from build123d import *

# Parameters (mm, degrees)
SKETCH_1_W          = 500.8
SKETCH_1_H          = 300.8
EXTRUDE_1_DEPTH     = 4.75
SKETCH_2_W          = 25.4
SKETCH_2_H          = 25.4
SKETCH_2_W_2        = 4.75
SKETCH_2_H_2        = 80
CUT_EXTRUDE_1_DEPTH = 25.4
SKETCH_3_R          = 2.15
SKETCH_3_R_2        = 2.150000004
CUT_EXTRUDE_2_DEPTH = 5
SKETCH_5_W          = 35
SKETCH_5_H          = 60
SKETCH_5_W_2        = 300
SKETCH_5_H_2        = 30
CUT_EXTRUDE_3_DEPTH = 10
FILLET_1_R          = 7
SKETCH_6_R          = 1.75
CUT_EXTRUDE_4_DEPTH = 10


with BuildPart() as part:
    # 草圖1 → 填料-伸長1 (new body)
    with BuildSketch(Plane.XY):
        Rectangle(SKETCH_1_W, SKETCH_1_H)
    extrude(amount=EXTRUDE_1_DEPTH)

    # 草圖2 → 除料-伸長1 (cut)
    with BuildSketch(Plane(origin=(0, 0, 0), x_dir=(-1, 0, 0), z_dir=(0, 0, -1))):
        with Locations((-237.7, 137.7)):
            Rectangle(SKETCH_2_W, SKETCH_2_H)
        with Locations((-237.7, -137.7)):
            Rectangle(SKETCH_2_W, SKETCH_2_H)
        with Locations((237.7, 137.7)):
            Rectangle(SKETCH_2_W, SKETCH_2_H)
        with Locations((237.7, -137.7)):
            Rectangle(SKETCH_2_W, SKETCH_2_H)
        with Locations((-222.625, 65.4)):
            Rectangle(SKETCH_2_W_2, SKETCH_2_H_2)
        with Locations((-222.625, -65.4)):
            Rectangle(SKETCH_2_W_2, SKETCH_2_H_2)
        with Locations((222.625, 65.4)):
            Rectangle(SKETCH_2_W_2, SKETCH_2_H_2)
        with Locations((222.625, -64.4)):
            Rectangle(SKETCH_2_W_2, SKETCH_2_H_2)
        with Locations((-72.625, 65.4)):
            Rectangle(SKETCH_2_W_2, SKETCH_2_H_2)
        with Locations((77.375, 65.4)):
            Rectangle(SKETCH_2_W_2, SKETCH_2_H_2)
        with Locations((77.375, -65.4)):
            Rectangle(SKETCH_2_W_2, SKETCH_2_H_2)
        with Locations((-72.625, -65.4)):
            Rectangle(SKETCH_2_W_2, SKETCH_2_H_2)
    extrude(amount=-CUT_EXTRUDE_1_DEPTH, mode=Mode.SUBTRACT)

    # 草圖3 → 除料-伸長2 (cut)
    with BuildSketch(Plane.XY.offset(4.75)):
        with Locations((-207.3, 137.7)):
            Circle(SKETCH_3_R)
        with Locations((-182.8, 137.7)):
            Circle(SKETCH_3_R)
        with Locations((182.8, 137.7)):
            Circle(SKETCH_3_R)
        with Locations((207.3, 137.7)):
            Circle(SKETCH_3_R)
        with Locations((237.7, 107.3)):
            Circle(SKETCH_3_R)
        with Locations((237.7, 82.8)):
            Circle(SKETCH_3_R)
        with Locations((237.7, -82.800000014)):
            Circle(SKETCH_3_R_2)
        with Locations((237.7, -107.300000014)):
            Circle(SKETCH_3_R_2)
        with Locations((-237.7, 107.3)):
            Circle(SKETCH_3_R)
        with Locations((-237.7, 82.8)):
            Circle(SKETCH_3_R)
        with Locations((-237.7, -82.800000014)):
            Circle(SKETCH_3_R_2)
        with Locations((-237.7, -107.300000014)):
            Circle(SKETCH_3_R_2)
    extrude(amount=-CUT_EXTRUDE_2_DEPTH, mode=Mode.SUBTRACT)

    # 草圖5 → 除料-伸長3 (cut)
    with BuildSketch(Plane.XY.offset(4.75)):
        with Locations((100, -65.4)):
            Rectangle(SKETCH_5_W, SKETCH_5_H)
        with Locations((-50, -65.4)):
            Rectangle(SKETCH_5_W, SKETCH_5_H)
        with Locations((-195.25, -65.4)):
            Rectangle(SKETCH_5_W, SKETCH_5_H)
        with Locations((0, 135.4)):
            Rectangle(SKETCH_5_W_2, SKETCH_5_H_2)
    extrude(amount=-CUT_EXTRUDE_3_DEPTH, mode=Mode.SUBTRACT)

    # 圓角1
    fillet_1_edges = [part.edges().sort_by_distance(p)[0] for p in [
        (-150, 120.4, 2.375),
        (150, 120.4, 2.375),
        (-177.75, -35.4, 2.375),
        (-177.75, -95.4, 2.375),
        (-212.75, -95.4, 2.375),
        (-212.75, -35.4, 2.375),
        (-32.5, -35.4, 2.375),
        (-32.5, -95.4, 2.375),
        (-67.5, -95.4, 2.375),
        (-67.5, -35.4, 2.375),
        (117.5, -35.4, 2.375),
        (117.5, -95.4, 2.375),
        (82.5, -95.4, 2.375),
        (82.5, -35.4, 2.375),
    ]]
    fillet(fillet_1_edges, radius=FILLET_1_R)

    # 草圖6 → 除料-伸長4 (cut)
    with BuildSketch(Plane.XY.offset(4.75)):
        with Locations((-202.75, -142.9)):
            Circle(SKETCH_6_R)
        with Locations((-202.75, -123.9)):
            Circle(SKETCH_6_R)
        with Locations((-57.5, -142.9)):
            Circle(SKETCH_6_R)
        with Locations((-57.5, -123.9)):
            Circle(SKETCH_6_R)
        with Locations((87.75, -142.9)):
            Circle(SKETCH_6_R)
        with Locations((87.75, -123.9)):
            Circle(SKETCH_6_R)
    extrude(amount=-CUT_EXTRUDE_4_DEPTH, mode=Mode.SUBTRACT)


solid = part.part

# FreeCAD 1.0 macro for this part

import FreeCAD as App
import Part
import Sketcher


def edges_at(feature, points):
    """Names of the edges that pass closest to the given points."""
    edges = feature.Shape.Edges
    near = lambda p: min(range(len(edges)), key=lambda i: edges[i].distToShape(Part.Vertex(*p))[0])
    return sorted({f"Edge{near(p) + 1}" for p in points})

doc = App.newDocument("Part")
params = doc.addObject("Spreadsheet::Sheet", "Params")
for row, (alias, value) in enumerate([
    ("sketch1_width", "500.8 mm"),
    ("sketch1_height", "300.8 mm"),
    ("pad1_length", "4.75 mm"),
    ("sketch2_height", "80 mm"),
    ("sketch2_width", "25.4 mm"),
    ("sketch2_width2", "4.75 mm"),
    ("pocket1_length", "25.4 mm"),
    ("sketch3_diameter", "4.3 mm"),
    ("pocket2_length", "5 mm"),
    ("sketch4_width", "35 mm"),
    ("sketch4_width2", "300 mm"),
    ("sketch4_height", "60 mm"),
    ("sketch4_height2", "30 mm"),
    ("pocket3_length", "10 mm"),
    ("fillet_radius", "7 mm"),
    ("sketch5_diameter", "3.5 mm"),
    ("pocket4_length", "10 mm"),
], start=1):
    params.set(f"A{row}", alias)
    params.set(f"B{row}", "=" + value)
    params.setAlias(f"B{row}", alias)

body = doc.addObject("PartDesign::Body", "Body")

# Sketch on XY plane
sketch1 = body.newObject("Sketcher::SketchObject", "Sketch")
sketch1.AttachmentSupport = (doc.getObject("XY_Plane"), [""])
sketch1.MapMode = "FlatFace"
sketch1.addGeometry(Part.LineSegment(App.Vector(-250, 150, 0), App.Vector(-250, -150, 0)), False)
sketch1.addGeometry(Part.LineSegment(App.Vector(-250, -150, 0), App.Vector(250, -150, 0)), False)
sketch1.addGeometry(Part.LineSegment(App.Vector(250, -150, 0), App.Vector(250, 150, 0)), False)
sketch1.addGeometry(Part.LineSegment(App.Vector(250, 150, 0), App.Vector(-250, 150, 0)), False)
sketch1.addConstraint(Sketcher.Constraint("Coincident", 0, 2, 1, 1))
sketch1.addConstraint(Sketcher.Constraint("Coincident", 1, 2, 2, 1))
sketch1.addConstraint(Sketcher.Constraint("Coincident", 2, 2, 3, 1))
sketch1.addConstraint(Sketcher.Constraint("Coincident", 3, 2, 0, 1))
sketch1.addConstraint(Sketcher.Constraint("Vertical", 0))
sketch1.addConstraint(Sketcher.Constraint("Horizontal", 1))
sketch1.addConstraint(Sketcher.Constraint("Vertical", 2))
sketch1.addConstraint(Sketcher.Constraint("Horizontal", 3))
sketch1.addConstraint(Sketcher.Constraint("Symmetric", 0, 2, 2, 2, -1, 1))
sketch1.addConstraint(Sketcher.Constraint("DistanceX", 1, 1, 1, 2, 500.8))
sketch1.addConstraint(Sketcher.Constraint("DistanceY", 0, 2, 0, 1, 300.8))
sketch1.setExpression("Constraints[9]", "Params.sketch1_width")
sketch1.setExpression("Constraints[10]", "Params.sketch1_height")
pad1 = body.newObject("PartDesign::Pad", "Pad")
pad1.Profile = sketch1
pad1.setExpression("Length", "Params.pad1_length")

# Sketch on XY plane
sketch2 = body.newObject("Sketcher::SketchObject", "Sketch001")
sketch2.AttachmentSupport = (doc.getObject("XY_Plane"), [""])
sketch2.MapMode = "FlatFace"
sketch2.addGeometry(Part.LineSegment(App.Vector(250.4, 150.4, 0), App.Vector(250.4, 125, 0)), False)
sketch2.addGeometry(Part.LineSegment(App.Vector(250.4, 125, 0), App.Vector(225, 125, 0)), False)
sketch2.addGeometry(Part.LineSegment(App.Vector(225, 125, 0), App.Vector(225, 150.4, 0)), False)
sketch2.addGeometry(Part.LineSegment(App.Vector(225, 150.4, 0), App.Vector(250.4, 150.4, 0)), False)
sketch2.addGeometry(Part.LineSegment(App.Vector(250.4, -125, 0), App.Vector(250.4, -150.4, 0)), False)
sketch2.addGeometry(Part.LineSegment(App.Vector(250.4, -150.4, 0), App.Vector(225, -150.4, 0)), False)
sketch2.addGeometry(Part.LineSegment(App.Vector(225, -150.4, 0), App.Vector(225, -125, 0)), False)
sketch2.addGeometry(Part.LineSegment(App.Vector(225, -125, 0), App.Vector(250.4, -125, 0)), False)
sketch2.addGeometry(Part.LineSegment(App.Vector(-225, 150.4, 0), App.Vector(-225, 125, 0)), False)
sketch2.addGeometry(Part.LineSegment(App.Vector(-225, 125, 0), App.Vector(-250.4, 125, 0)), False)
sketch2.addGeometry(Part.LineSegment(App.Vector(-250.4, 125, 0), App.Vector(-250.4, 150.4, 0)), False)
sketch2.addGeometry(Part.LineSegment(App.Vector(-250.4, 150.4, 0), App.Vector(-225, 150.4, 0)), False)
sketch2.addGeometry(Part.LineSegment(App.Vector(-225, -125, 0), App.Vector(-225, -150.4, 0)), False)
sketch2.addGeometry(Part.LineSegment(App.Vector(-225, -150.4, 0), App.Vector(-250.4, -150.4, 0)), False)
sketch2.addGeometry(Part.LineSegment(App.Vector(-250.4, -150.4, 0), App.Vector(-250.4, -125, 0)), False)
sketch2.addGeometry(Part.LineSegment(App.Vector(-250.4, -125, 0), App.Vector(-225, -125, 0)), False)
sketch2.addGeometry(Part.LineSegment(App.Vector(225, 105.4, 0), App.Vector(225, 25.4, 0)), False)
sketch2.addGeometry(Part.LineSegment(App.Vector(225, 25.4, 0), App.Vector(220.2, 25.4, 0)), False)
sketch2.addGeometry(Part.LineSegment(App.Vector(220.2, 25.4, 0), App.Vector(220.2, 105.4, 0)), False)
sketch2.addGeometry(Part.LineSegment(App.Vector(220.2, 105.4, 0), App.Vector(225, 105.4, 0)), False)
sketch2.addGeometry(Part.LineSegment(App.Vector(225, -25.4, 0), App.Vector(225, -105.4, 0)), False)
sketch2.addGeometry(Part.LineSegment(App.Vector(225, -105.4, 0), App.Vector(220.2, -105.4, 0)), False)
sketch2.addGeometry(Part.LineSegment(App.Vector(220.2, -105.4, 0), App.Vector(220.2, -25.4, 0)), False)
sketch2.addGeometry(Part.LineSegment(App.Vector(220.2, -25.4, 0), App.Vector(225, -25.4, 0)), False)
sketch2.addGeometry(Part.LineSegment(App.Vector(-220.2, 105.4, 0), App.Vector(-220.2, 25.4, 0)), False)
sketch2.addGeometry(Part.LineSegment(App.Vector(-220.2, 25.4, 0), App.Vector(-225, 25.4, 0)), False)
sketch2.addGeometry(Part.LineSegment(App.Vector(-225, 25.4, 0), App.Vector(-225, 105.4, 0)), False)
sketch2.addGeometry(Part.LineSegment(App.Vector(-225, 105.4, 0), App.Vector(-220.2, 105.4, 0)), False)
sketch2.addGeometry(Part.LineSegment(App.Vector(-220.2, -24.4, 0), App.Vector(-220.2, -104.4, 0)), False)
sketch2.addGeometry(Part.LineSegment(App.Vector(-220.2, -104.4, 0), App.Vector(-225, -104.4, 0)), False)
sketch2.addGeometry(Part.LineSegment(App.Vector(-225, -104.4, 0), App.Vector(-225, -24.4, 0)), False)
sketch2.addGeometry(Part.LineSegment(App.Vector(-225, -24.4, 0), App.Vector(-220.2, -24.4, 0)), False)
sketch2.addGeometry(Part.LineSegment(App.Vector(75, 105.4, 0), App.Vector(75, 25.4, 0)), False)
sketch2.addGeometry(Part.LineSegment(App.Vector(75, 25.4, 0), App.Vector(70.2, 25.4, 0)), False)
sketch2.addGeometry(Part.LineSegment(App.Vector(70.2, 25.4, 0), App.Vector(70.2, 105.4, 0)), False)
sketch2.addGeometry(Part.LineSegment(App.Vector(70.2, 105.4, 0), App.Vector(75, 105.4, 0)), False)
sketch2.addGeometry(Part.LineSegment(App.Vector(-75, 105.4, 0), App.Vector(-75, 25.4, 0)), False)
sketch2.addGeometry(Part.LineSegment(App.Vector(-75, 25.4, 0), App.Vector(-79.8, 25.4, 0)), False)
sketch2.addGeometry(Part.LineSegment(App.Vector(-79.8, 25.4, 0), App.Vector(-79.8, 105.4, 0)), False)
sketch2.addGeometry(Part.LineSegment(App.Vector(-79.8, 105.4, 0), App.Vector(-75, 105.4, 0)), False)
sketch2.addGeometry(Part.LineSegment(App.Vector(-75, -25.4, 0), App.Vector(-75, -105.4, 0)), False)
sketch2.addGeometry(Part.LineSegment(App.Vector(-75, -105.4, 0), App.Vector(-79.8, -105.4, 0)), False)
sketch2.addGeometry(Part.LineSegment(App.Vector(-79.8, -105.4, 0), App.Vector(-79.8, -25.4, 0)), False)
sketch2.addGeometry(Part.LineSegment(App.Vector(-79.8, -25.4, 0), App.Vector(-75, -25.4, 0)), False)
sketch2.addGeometry(Part.LineSegment(App.Vector(75, -25.4, 0), App.Vector(75, -105.4, 0)), False)
sketch2.addGeometry(Part.LineSegment(App.Vector(75, -105.4, 0), App.Vector(70.2, -105.4, 0)), False)
sketch2.addGeometry(Part.LineSegment(App.Vector(70.2, -105.4, 0), App.Vector(70.2, -25.4, 0)), False)
sketch2.addGeometry(Part.LineSegment(App.Vector(70.2, -25.4, 0), App.Vector(75, -25.4, 0)), False)
sketch2.addConstraint(Sketcher.Constraint("Coincident", 0, 2, 1, 1))
sketch2.addConstraint(Sketcher.Constraint("Coincident", 1, 2, 2, 1))
sketch2.addConstraint(Sketcher.Constraint("Coincident", 2, 2, 3, 1))
sketch2.addConstraint(Sketcher.Constraint("Coincident", 3, 2, 0, 1))
sketch2.addConstraint(Sketcher.Constraint("Coincident", 4, 2, 5, 1))
sketch2.addConstraint(Sketcher.Constraint("Coincident", 5, 2, 6, 1))
sketch2.addConstraint(Sketcher.Constraint("Coincident", 6, 2, 7, 1))
sketch2.addConstraint(Sketcher.Constraint("Coincident", 7, 2, 4, 1))
sketch2.addConstraint(Sketcher.Constraint("Coincident", 8, 2, 9, 1))
sketch2.addConstraint(Sketcher.Constraint("Coincident", 9, 2, 10, 1))
sketch2.addConstraint(Sketcher.Constraint("Coincident", 10, 2, 11, 1))
sketch2.addConstraint(Sketcher.Constraint("Coincident", 11, 2, 8, 1))
sketch2.addConstraint(Sketcher.Constraint("Coincident", 12, 2, 13, 1))
sketch2.addConstraint(Sketcher.Constraint("Coincident", 13, 2, 14, 1))
sketch2.addConstraint(Sketcher.Constraint("Coincident", 14, 2, 15, 1))
sketch2.addConstraint(Sketcher.Constraint("Coincident", 15, 2, 12, 1))
sketch2.addConstraint(Sketcher.Constraint("Coincident", 16, 2, 17, 1))
sketch2.addConstraint(Sketcher.Constraint("Coincident", 17, 2, 18, 1))
sketch2.addConstraint(Sketcher.Constraint("Coincident", 18, 2, 19, 1))
sketch2.addConstraint(Sketcher.Constraint("Coincident", 19, 2, 16, 1))
sketch2.addConstraint(Sketcher.Constraint("Coincident", 20, 2, 21, 1))
sketch2.addConstraint(Sketcher.Constraint("Coincident", 21, 2, 22, 1))
sketch2.addConstraint(Sketcher.Constraint("Coincident", 22, 2, 23, 1))
sketch2.addConstraint(Sketcher.Constraint("Coincident", 23, 2, 20, 1))
sketch2.addConstraint(Sketcher.Constraint("Coincident", 24, 2, 25, 1))
sketch2.addConstraint(Sketcher.Constraint("Coincident", 25, 2, 26, 1))
sketch2.addConstraint(Sketcher.Constraint("Coincident", 26, 2, 27, 1))
sketch2.addConstraint(Sketcher.Constraint("Coincident", 27, 2, 24, 1))
sketch2.addConstraint(Sketcher.Constraint("Coincident", 28, 2, 29, 1))
sketch2.addConstraint(Sketcher.Constraint("Coincident", 29, 2, 30, 1))
sketch2.addConstraint(Sketcher.Constraint("Coincident", 30, 2, 31, 1))
sketch2.addConstraint(Sketcher.Constraint("Coincident", 31, 2, 28, 1))
sketch2.addConstraint(Sketcher.Constraint("Coincident", 32, 2, 33, 1))
sketch2.addConstraint(Sketcher.Constraint("Coincident", 33, 2, 34, 1))
sketch2.addConstraint(Sketcher.Constraint("Coincident", 34, 2, 35, 1))
sketch2.addConstraint(Sketcher.Constraint("Coincident", 35, 2, 32, 1))
sketch2.addConstraint(Sketcher.Constraint("Coincident", 36, 2, 37, 1))
sketch2.addConstraint(Sketcher.Constraint("Coincident", 37, 2, 38, 1))
sketch2.addConstraint(Sketcher.Constraint("Coincident", 38, 2, 39, 1))
sketch2.addConstraint(Sketcher.Constraint("Coincident", 39, 2, 36, 1))
sketch2.addConstraint(Sketcher.Constraint("Coincident", 40, 2, 41, 1))
sketch2.addConstraint(Sketcher.Constraint("Coincident", 41, 2, 42, 1))
sketch2.addConstraint(Sketcher.Constraint("Coincident", 42, 2, 43, 1))
sketch2.addConstraint(Sketcher.Constraint("Coincident", 43, 2, 40, 1))
sketch2.addConstraint(Sketcher.Constraint("Coincident", 44, 2, 45, 1))
sketch2.addConstraint(Sketcher.Constraint("Coincident", 45, 2, 46, 1))
sketch2.addConstraint(Sketcher.Constraint("Coincident", 46, 2, 47, 1))
sketch2.addConstraint(Sketcher.Constraint("Coincident", 47, 2, 44, 1))
sketch2.addConstraint(Sketcher.Constraint("Vertical", 0))
sketch2.addConstraint(Sketcher.Constraint("Horizontal", 1))
sketch2.addConstraint(Sketcher.Constraint("Vertical", 2))
sketch2.addConstraint(Sketcher.Constraint("Horizontal", 3))
sketch2.addConstraint(Sketcher.Constraint("Vertical", 4))
sketch2.addConstraint(Sketcher.Constraint("Horizontal", 5))
sketch2.addConstraint(Sketcher.Constraint("Vertical", 6))
sketch2.addConstraint(Sketcher.Constraint("Horizontal", 7))
sketch2.addConstraint(Sketcher.Constraint("Vertical", 8))
sketch2.addConstraint(Sketcher.Constraint("Horizontal", 9))
sketch2.addConstraint(Sketcher.Constraint("Vertical", 10))
sketch2.addConstraint(Sketcher.Constraint("Horizontal", 11))
sketch2.addConstraint(Sketcher.Constraint("Vertical", 12))
sketch2.addConstraint(Sketcher.Constraint("Horizontal", 13))
sketch2.addConstraint(Sketcher.Constraint("Vertical", 14))
sketch2.addConstraint(Sketcher.Constraint("Horizontal", 15))
sketch2.addConstraint(Sketcher.Constraint("Vertical", 16))
sketch2.addConstraint(Sketcher.Constraint("Horizontal", 17))
sketch2.addConstraint(Sketcher.Constraint("Vertical", 18))
sketch2.addConstraint(Sketcher.Constraint("Horizontal", 19))
sketch2.addConstraint(Sketcher.Constraint("Vertical", 20))
sketch2.addConstraint(Sketcher.Constraint("Horizontal", 21))
sketch2.addConstraint(Sketcher.Constraint("Vertical", 22))
sketch2.addConstraint(Sketcher.Constraint("Horizontal", 23))
sketch2.addConstraint(Sketcher.Constraint("Vertical", 24))
sketch2.addConstraint(Sketcher.Constraint("Horizontal", 25))
sketch2.addConstraint(Sketcher.Constraint("Vertical", 26))
sketch2.addConstraint(Sketcher.Constraint("Horizontal", 27))
sketch2.addConstraint(Sketcher.Constraint("Vertical", 28))
sketch2.addConstraint(Sketcher.Constraint("Horizontal", 29))
sketch2.addConstraint(Sketcher.Constraint("Vertical", 30))
sketch2.addConstraint(Sketcher.Constraint("Horizontal", 31))
sketch2.addConstraint(Sketcher.Constraint("Vertical", 32))
sketch2.addConstraint(Sketcher.Constraint("Horizontal", 33))
sketch2.addConstraint(Sketcher.Constraint("Vertical", 34))
sketch2.addConstraint(Sketcher.Constraint("Horizontal", 35))
sketch2.addConstraint(Sketcher.Constraint("Vertical", 36))
sketch2.addConstraint(Sketcher.Constraint("Horizontal", 37))
sketch2.addConstraint(Sketcher.Constraint("Vertical", 38))
sketch2.addConstraint(Sketcher.Constraint("Horizontal", 39))
sketch2.addConstraint(Sketcher.Constraint("Vertical", 40))
sketch2.addConstraint(Sketcher.Constraint("Horizontal", 41))
sketch2.addConstraint(Sketcher.Constraint("Vertical", 42))
sketch2.addConstraint(Sketcher.Constraint("Horizontal", 43))
sketch2.addConstraint(Sketcher.Constraint("Vertical", 44))
sketch2.addConstraint(Sketcher.Constraint("Horizontal", 45))
sketch2.addConstraint(Sketcher.Constraint("Vertical", 46))
sketch2.addConstraint(Sketcher.Constraint("Horizontal", 47))
sketch2.addConstraint(Sketcher.Constraint("Symmetric", 6, 2, 8, 2, -1, 1))
sketch2.addConstraint(Sketcher.Constraint("Symmetric", 4, 2, 10, 2, -1, 1))
sketch2.addConstraint(Sketcher.Constraint("Symmetric", 2, 2, 12, 2, -1, 1))
sketch2.addConstraint(Sketcher.Constraint("Symmetric", 0, 2, 14, 2, -1, 1))
sketch2.addConstraint(Sketcher.Constraint("Symmetric", 22, 2, 24, 2, -1, 1))
sketch2.addConstraint(Sketcher.Constraint("Symmetric", 20, 2, 26, 2, -1, 1))
sketch2.addConstraint(Sketcher.Constraint("Symmetric", 35, 2, 40, 2, -1, 1))
sketch2.addConstraint(Sketcher.Constraint("Symmetric", 39, 2, 44, 2, -1, 1))
sketch2.addConstraint(Sketcher.Constraint("Symmetric", 1, 2, 8, 2, -2))
sketch2.addConstraint(Sketcher.Constraint("Symmetric", 3, 2, 10, 2, -2))
sketch2.addConstraint(Sketcher.Constraint("Symmetric", 17, 2, 24, 2, -2))
sketch2.addConstraint(Sketcher.Constraint("Symmetric", 19, 2, 26, 2, -2))
sketch2.addConstraint(Sketcher.Constraint("Symmetric", 32, 2, 36, 2, -2))
sketch2.addConstraint(Sketcher.Constraint("Symmetric", 38, 2, 41, 2, -1))
sketch2.addConstraint(Sketcher.Constraint("Symmetric", 33, 2, 46, 2, -1))
sketch2.addConstraint(Sketcher.Constraint("Horizontal", 25, 2, 32, 2))
sketch2.addConstraint(Sketcher.Constraint("Horizontal", 27, 2, 34, 2))
sketch2.addConstraint(Sketcher.Constraint("Horizontal", 23, 2, 42, 2))
sketch2.addConstraint(Sketcher.Constraint("Vertical", 6, 2, 16, 2))
sketch2.addConstraint(Sketcher.Constraint("Vertical", 27, 2, 28, 2))
sketch2.addConstraint(Sketcher.Constraint("Vertical", 26, 2, 29, 2))
sketch2.addConstraint(Sketcher.Constraint("Equal", 31, 33))
sketch2.addConstraint(Sketcher.Constraint("Equal", 35, 37))
sketch2.addConstraint(Sketcher.Constraint("Equal", 15, 0))
sketch2.addConstraint(Sketcher.Constraint("Equal", 26, 28))
sketch2.addConstraint(Sketcher.Constraint("DistanceY", 16, 2, 16, 1, 80.0))
sketch2.addConstraint(Sketcher.Constraint("DistanceX", 1, 2, 1, 1, 25.4))
sketch2.addConstraint(Sketcher.Constraint("DistanceY", -1, 1, 0, 2, 125.0))
sketch2.addConstraint(Sketcher.Constraint("DistanceX", -1, 1, 1, 2, 225.0))
sketch2.addConstraint(Sketcher.Constraint("DistanceX", -1, 1, 32, 2, 75.0))
sketch2.addConstraint(Sketcher.Constraint("DistanceY", 16, 2, 2, 2, 125.0))
sketch2.addConstraint(Sketcher.Constraint("DistanceY", 12, 2, 28, 2, 46.0))
sketch2.addConstraint(Sketcher.Constraint("DistanceX", 17, 2, 17, 1, 4.75))
sketch2.setExpression("Constraints[121]", "Params.sketch2_height")
sketch2.setExpression("Constraints[122]", "Params.sketch2_width")
sketch2.setExpression("Constraints[128]", "Params.sketch2_width2")
pocket1 = body.newObject("PartDesign::Pocket", "Pocket")
pocket1.Profile = sketch2
pocket1.setExpression("Length", "Params.pocket1_length")
pocket1.Reversed = True

# Sketch on XY plane
sketch3 = body.newObject("Sketcher::SketchObject", "Sketch002")
sketch3.AttachmentSupport = (doc.getObject("XY_Plane"), [""])
sketch3.MapMode = "FlatFace"
sketch3.AttachmentOffset = App.Placement(App.Vector(0, 0, 4.75), App.Rotation())
sketch3.addGeometry(Part.Circle(App.Vector(-207.3, 137.7, 0), App.Vector(0, 0, 1), 2.1), False)
sketch3.addGeometry(Part.Circle(App.Vector(-182.8, 137.7, 0), App.Vector(0, 0, 1), 2.1), False)
sketch3.addGeometry(Part.Circle(App.Vector(182.8, 137.7, 0), App.Vector(0, 0, 1), 2.1), False)
sketch3.addGeometry(Part.Circle(App.Vector(207.3, 137.7, 0), App.Vector(0, 0, 1), 2.1), False)
sketch3.addGeometry(Part.Circle(App.Vector(237.7, 107.3, 0), App.Vector(0, 0, 1), 2.1), False)
sketch3.addGeometry(Part.Circle(App.Vector(237.7, 82.8, 0), App.Vector(0, 0, 1), 2.1), False)
sketch3.addGeometry(Part.Circle(App.Vector(237.7, -82.8, 0), App.Vector(0, 0, 1), 2.2), False)
sketch3.addGeometry(Part.Circle(App.Vector(237.7, -107.3, 0), App.Vector(0, 0, 1), 2.2), False)
sketch3.addGeometry(Part.Circle(App.Vector(-237.7, 107.3, 0), App.Vector(0, 0, 1), 2.1), False)
sketch3.addGeometry(Part.Circle(App.Vector(-237.7, 82.8, 0), App.Vector(0, 0, 1), 2.1), False)
sketch3.addGeometry(Part.Circle(App.Vector(-237.7, -82.8, 0), App.Vector(0, 0, 1), 2.2), False)
sketch3.addGeometry(Part.Circle(App.Vector(-237.7, -107.3, 0), App.Vector(0, 0, 1), 2.2), False)
sketch3.addConstraint(Sketcher.Constraint("Equal", 0, 1))
sketch3.addConstraint(Sketcher.Constraint("Equal", 1, 2))
sketch3.addConstraint(Sketcher.Constraint("Equal", 2, 3))
sketch3.addConstraint(Sketcher.Constraint("Equal", 3, 4))
sketch3.addConstraint(Sketcher.Constraint("Equal", 4, 5))
sketch3.addConstraint(Sketcher.Constraint("Equal", 5, 6))
sketch3.addConstraint(Sketcher.Constraint("Equal", 6, 7))
sketch3.addConstraint(Sketcher.Constraint("Equal", 7, 8))
sketch3.addConstraint(Sketcher.Constraint("Equal", 8, 9))
sketch3.addConstraint(Sketcher.Constraint("Equal", 9, 10))
sketch3.addConstraint(Sketcher.Constraint("Equal", 10, 11))
sketch3.addConstraint(Sketcher.Constraint("Symmetric", 7, 3, 8, 3, -1, 1))
sketch3.addConstraint(Sketcher.Constraint("Symmetric", 6, 3, 9, 3, -1, 1))
sketch3.addConstraint(Sketcher.Constraint("Symmetric", 5, 3, 10, 3, -1, 1))
sketch3.addConstraint(Sketcher.Constraint("Symmetric", 4, 3, 11, 3, -1, 1))
sketch3.addConstraint(Sketcher.Constraint("Symmetric", 1, 3, 2, 3, -2))
sketch3.addConstraint(Sketcher.Constraint("Symmetric", 0, 3, 3, 3, -2))
sketch3.addConstraint(Sketcher.Constraint("Symmetric", 4, 3, 8, 3, -2))
sketch3.addConstraint(Sketcher.Constraint("Symmetric", 5, 3, 9, 3, -2))
sketch3.addConstraint(Sketcher.Constraint("Horizontal", 0, 3, 1, 3))
sketch3.addConstraint(Sketcher.Constraint("Vertical", 4, 3, 5, 3))
sketch3.addConstraint(Sketcher.Constraint("Diameter", 0, 4.3))
sketch3.addConstraint(Sketcher.Constraint("DistanceX", 0, 3, 4, 3, 445.0))
sketch3.addConstraint(Sketcher.Constraint("DistanceY", 7, 3, 3, 3, 245.0))
sketch3.addConstraint(Sketcher.Constraint("DistanceX", 0, 3, -1, 1, 207.3))
sketch3.addConstraint(Sketcher.Constraint("DistanceY", -1, 1, 0, 3, 137.7))
sketch3.addConstraint(Sketcher.Constraint("DistanceX", 1, 3, -1, 1, 182.8))
sketch3.addConstraint(Sketcher.Constraint("DistanceY", -1, 1, 5, 3, 82.8))
sketch3.setExpression("Constraints[21]", "Params.sketch3_diameter")
pocket2 = body.newObject("PartDesign::Pocket", "Pocket001")
pocket2.Profile = sketch3
pocket2.setExpression("Length", "Params.pocket2_length")

# Sketch on XY plane
sketch4 = body.newObject("Sketcher::SketchObject", "Sketch003")
sketch4.AttachmentSupport = (doc.getObject("XY_Plane"), [""])
sketch4.MapMode = "FlatFace"
sketch4.AttachmentOffset = App.Placement(App.Vector(0, 0, 4.75), App.Rotation())
sketch4.addGeometry(Part.LineSegment(App.Vector(82, -35, 0), App.Vector(82, -95, 0)), False)
sketch4.addGeometry(Part.LineSegment(App.Vector(82, -95, 0), App.Vector(118, -95, 0)), False)
sketch4.addGeometry(Part.LineSegment(App.Vector(118, -95, 0), App.Vector(118, -35, 0)), False)
sketch4.addGeometry(Part.LineSegment(App.Vector(118, -35, 0), App.Vector(82, -35, 0)), False)
sketch4.addGeometry(Part.LineSegment(App.Vector(-68, -35, 0), App.Vector(-68, -95, 0)), False)
sketch4.addGeometry(Part.LineSegment(App.Vector(-68, -95, 0), App.Vector(-32, -95, 0)), False)
sketch4.addGeometry(Part.LineSegment(App.Vector(-32, -95, 0), App.Vector(-32, -35, 0)), False)
sketch4.addGeometry(Part.LineSegment(App.Vector(-32, -35, 0), App.Vector(-68, -35, 0)), False)
sketch4.addGeometry(Part.LineSegment(App.Vector(-213, -35, 0), App.Vector(-213, -95, 0)), False)
sketch4.addGeometry(Part.LineSegment(App.Vector(-213, -95, 0), App.Vector(-178, -95, 0)), False)
sketch4.addGeometry(Part.LineSegment(App.Vector(-178, -95, 0), App.Vector(-178, -35, 0)), False)
sketch4.addGeometry(Part.LineSegment(App.Vector(-178, -35, 0), App.Vector(-213, -35, 0)), False)
sketch4.addGeometry(Part.LineSegment(App.Vector(-150, 150, 0), App.Vector(-150, 120, 0)), False)
sketch4.addGeometry(Part.LineSegment(App.Vector(-150, 120, 0), App.Vector(150, 120, 0)), False)
sketch4.addGeometry(Part.LineSegment(App.Vector(150, 120, 0), App.Vector(150, 150, 0)), False)
sketch4.addGeometry(Part.LineSegment(App.Vector(150, 150, 0), App.Vector(-150, 150, 0)), False)
sketch4.addConstraint(Sketcher.Constraint("Coincident", 0, 2, 1, 1))
sketch4.addConstraint(Sketcher.Constraint("Coincident", 1, 2, 2, 1))
sketch4.addConstraint(Sketcher.Constraint("Coincident", 2, 2, 3, 1))
sketch4.addConstraint(Sketcher.Constraint("Coincident", 3, 2, 0, 1))
sketch4.addConstraint(Sketcher.Constraint("Coincident", 4, 2, 5, 1))
sketch4.addConstraint(Sketcher.Constraint("Coincident", 5, 2, 6, 1))
sketch4.addConstraint(Sketcher.Constraint("Coincident", 6, 2, 7, 1))
sketch4.addConstraint(Sketcher.Constraint("Coincident", 7, 2, 4, 1))
sketch4.addConstraint(Sketcher.Constraint("Coincident", 8, 2, 9, 1))
sketch4.addConstraint(Sketcher.Constraint("Coincident", 9, 2, 10, 1))
sketch4.addConstraint(Sketcher.Constraint("Coincident", 10, 2, 11, 1))
sketch4.addConstraint(Sketcher.Constraint("Coincident", 11, 2, 8, 1))
sketch4.addConstraint(Sketcher.Constraint("Coincident", 12, 2, 13, 1))
sketch4.addConstraint(Sketcher.Constraint("Coincident", 13, 2, 14, 1))
sketch4.addConstraint(Sketcher.Constraint("Coincident", 14, 2, 15, 1))
sketch4.addConstraint(Sketcher.Constraint("Coincident", 15, 2, 12, 1))
sketch4.addConstraint(Sketcher.Constraint("Vertical", 0))
sketch4.addConstraint(Sketcher.Constraint("Horizontal", 1))
sketch4.addConstraint(Sketcher.Constraint("Vertical", 2))
sketch4.addConstraint(Sketcher.Constraint("Horizontal", 3))
sketch4.addConstraint(Sketcher.Constraint("Vertical", 4))
sketch4.addConstraint(Sketcher.Constraint("Horizontal", 5))
sketch4.addConstraint(Sketcher.Constraint("Vertical", 6))
sketch4.addConstraint(Sketcher.Constraint("Horizontal", 7))
sketch4.addConstraint(Sketcher.Constraint("Vertical", 8))
sketch4.addConstraint(Sketcher.Constraint("Horizontal", 9))
sketch4.addConstraint(Sketcher.Constraint("Vertical", 10))
sketch4.addConstraint(Sketcher.Constraint("Horizontal", 11))
sketch4.addConstraint(Sketcher.Constraint("Vertical", 12))
sketch4.addConstraint(Sketcher.Constraint("Horizontal", 13))
sketch4.addConstraint(Sketcher.Constraint("Vertical", 14))
sketch4.addConstraint(Sketcher.Constraint("Horizontal", 15))
sketch4.addConstraint(Sketcher.Constraint("Horizontal", 1, 2, 4, 2))
sketch4.addConstraint(Sketcher.Constraint("Horizontal", 3, 2, 6, 2))
sketch4.addConstraint(Sketcher.Constraint("Horizontal", 5, 2, 8, 2))
sketch4.addConstraint(Sketcher.Constraint("Horizontal", 7, 2, 10, 2))
sketch4.addConstraint(Sketcher.Constraint("Equal", 3, 5))
sketch4.addConstraint(Sketcher.Constraint("Equal", 7, 9))
sketch4.addConstraint(Sketcher.Constraint("DistanceX", 1, 1, 1, 2, 35.0))
sketch4.addConstraint(Sketcher.Constraint("DistanceX", 13, 1, 13, 2, 300.0))
sketch4.addConstraint(Sketcher.Constraint("DistanceY", 0, 2, 0, 1, 60.0))
sketch4.addConstraint(Sketcher.Constraint("DistanceY", 12, 2, 12, 1, 30.0))
sketch4.addConstraint(Sketcher.Constraint("DistanceX", 12, 2, -1, 1, 150.0))
sketch4.addConstraint(Sketcher.Constraint("DistanceX", 4, 2, 0, 2, 150.0))
sketch4.addConstraint(Sketcher.Constraint("DistanceX", -1, 1, 0, 2, 82.5))
sketch4.addConstraint(Sketcher.Constraint("DistanceY", 0, 2, -1, 1, 95.4))
sketch4.addConstraint(Sketcher.Constraint("DistanceY", -1, 1, 12, 2, 120.4))
sketch4.addConstraint(Sketcher.Constraint("DistanceX", 8, 2, -1, 1, 212.75))
sketch4.setExpression("Constraints[38]", "Params.sketch4_width")
sketch4.setExpression("Constraints[39]", "Params.sketch4_width2")
sketch4.setExpression("Constraints[40]", "Params.sketch4_height")
sketch4.setExpression("Constraints[41]", "Params.sketch4_height2")
pocket3 = body.newObject("PartDesign::Pocket", "Pocket002")
pocket3.Profile = sketch4
pocket3.setExpression("Length", "Params.pocket3_length")
doc.recompute()

fillet = body.newObject("PartDesign::Fillet", "Fillet")
fillet.Base = (pocket3, edges_at(pocket3, [
    (-150, 120.4, 2.375),
    (150, 120.4, 2.375),
    (-177.75, -35.4, 2.375),
    (-177.75, -95.4, 2.375),
    (-212.75, -95.4, 2.375),
    (-212.75, -35.4, 2.375),
    (-32.5, -35.4, 2.375),
    (-32.5, -95.4, 2.375),
    (-67.5, -95.4, 2.375),
    (-67.5, -35.4, 2.375),
    (117.5, -35.4, 2.375),
    (117.5, -95.4, 2.375),
    (82.5, -95.4, 2.375),
    (82.5, -35.4, 2.375),
]))
fillet.setExpression("Radius", "Params.fillet_radius")

# Sketch on XY plane
sketch5 = body.newObject("Sketcher::SketchObject", "Sketch004")
sketch5.AttachmentSupport = (doc.getObject("XY_Plane"), [""])
sketch5.MapMode = "FlatFace"
sketch5.AttachmentOffset = App.Placement(App.Vector(0, 0, 4.75), App.Rotation())
sketch5.addGeometry(Part.Circle(App.Vector(-202.8, -142.9, 0), App.Vector(0, 0, 1), 1.8), False)
sketch5.addGeometry(Part.Circle(App.Vector(-202.8, -123.9, 0), App.Vector(0, 0, 1), 1.8), False)
sketch5.addGeometry(Part.Circle(App.Vector(-57.5, -142.9, 0), App.Vector(0, 0, 1), 1.8), False)
sketch5.addGeometry(Part.Circle(App.Vector(-57.5, -123.9, 0), App.Vector(0, 0, 1), 1.8), False)
sketch5.addGeometry(Part.Circle(App.Vector(87.8, -142.9, 0), App.Vector(0, 0, 1), 1.8), False)
sketch5.addGeometry(Part.Circle(App.Vector(87.8, -123.9, 0), App.Vector(0, 0, 1), 1.8), False)
sketch5.addConstraint(Sketcher.Constraint("Equal", 0, 1))
sketch5.addConstraint(Sketcher.Constraint("Equal", 1, 2))
sketch5.addConstraint(Sketcher.Constraint("Equal", 2, 3))
sketch5.addConstraint(Sketcher.Constraint("Equal", 3, 4))
sketch5.addConstraint(Sketcher.Constraint("Equal", 4, 5))
sketch5.addConstraint(Sketcher.Constraint("Horizontal", 0, 3, 2, 3))
sketch5.addConstraint(Sketcher.Constraint("Horizontal", 1, 3, 3, 3))
sketch5.addConstraint(Sketcher.Constraint("Horizontal", 2, 3, 4, 3))
sketch5.addConstraint(Sketcher.Constraint("Horizontal", 3, 3, 5, 3))
sketch5.addConstraint(Sketcher.Constraint("Vertical", 0, 3, 1, 3))
sketch5.addConstraint(Sketcher.Constraint("Vertical", 2, 3, 3, 3))
sketch5.addConstraint(Sketcher.Constraint("Vertical", 4, 3, 5, 3))
sketch5.addConstraint(Sketcher.Constraint("Diameter", 0, 3.5))
sketch5.addConstraint(Sketcher.Constraint("DistanceY", 0, 3, 1, 3, 19.0))
sketch5.addConstraint(Sketcher.Constraint("DistanceY", 0, 3, -1, 1, 142.9))
sketch5.addConstraint(Sketcher.Constraint("DistanceX", 2, 3, -1, 1, 57.5))
sketch5.addConstraint(Sketcher.Constraint("DistanceX", 0, 3, 4, 3, 290.5))
sketch5.addConstraint(Sketcher.Constraint("DistanceX", 0, 3, -1, 1, 202.75))
sketch5.setExpression("Constraints[12]", "Params.sketch5_diameter")
pocket4 = body.newObject("PartDesign::Pocket", "Pocket003")
pocket4.Profile = sketch5
pocket4.setExpression("Length", "Params.pocket4_length")

doc.recompute()
